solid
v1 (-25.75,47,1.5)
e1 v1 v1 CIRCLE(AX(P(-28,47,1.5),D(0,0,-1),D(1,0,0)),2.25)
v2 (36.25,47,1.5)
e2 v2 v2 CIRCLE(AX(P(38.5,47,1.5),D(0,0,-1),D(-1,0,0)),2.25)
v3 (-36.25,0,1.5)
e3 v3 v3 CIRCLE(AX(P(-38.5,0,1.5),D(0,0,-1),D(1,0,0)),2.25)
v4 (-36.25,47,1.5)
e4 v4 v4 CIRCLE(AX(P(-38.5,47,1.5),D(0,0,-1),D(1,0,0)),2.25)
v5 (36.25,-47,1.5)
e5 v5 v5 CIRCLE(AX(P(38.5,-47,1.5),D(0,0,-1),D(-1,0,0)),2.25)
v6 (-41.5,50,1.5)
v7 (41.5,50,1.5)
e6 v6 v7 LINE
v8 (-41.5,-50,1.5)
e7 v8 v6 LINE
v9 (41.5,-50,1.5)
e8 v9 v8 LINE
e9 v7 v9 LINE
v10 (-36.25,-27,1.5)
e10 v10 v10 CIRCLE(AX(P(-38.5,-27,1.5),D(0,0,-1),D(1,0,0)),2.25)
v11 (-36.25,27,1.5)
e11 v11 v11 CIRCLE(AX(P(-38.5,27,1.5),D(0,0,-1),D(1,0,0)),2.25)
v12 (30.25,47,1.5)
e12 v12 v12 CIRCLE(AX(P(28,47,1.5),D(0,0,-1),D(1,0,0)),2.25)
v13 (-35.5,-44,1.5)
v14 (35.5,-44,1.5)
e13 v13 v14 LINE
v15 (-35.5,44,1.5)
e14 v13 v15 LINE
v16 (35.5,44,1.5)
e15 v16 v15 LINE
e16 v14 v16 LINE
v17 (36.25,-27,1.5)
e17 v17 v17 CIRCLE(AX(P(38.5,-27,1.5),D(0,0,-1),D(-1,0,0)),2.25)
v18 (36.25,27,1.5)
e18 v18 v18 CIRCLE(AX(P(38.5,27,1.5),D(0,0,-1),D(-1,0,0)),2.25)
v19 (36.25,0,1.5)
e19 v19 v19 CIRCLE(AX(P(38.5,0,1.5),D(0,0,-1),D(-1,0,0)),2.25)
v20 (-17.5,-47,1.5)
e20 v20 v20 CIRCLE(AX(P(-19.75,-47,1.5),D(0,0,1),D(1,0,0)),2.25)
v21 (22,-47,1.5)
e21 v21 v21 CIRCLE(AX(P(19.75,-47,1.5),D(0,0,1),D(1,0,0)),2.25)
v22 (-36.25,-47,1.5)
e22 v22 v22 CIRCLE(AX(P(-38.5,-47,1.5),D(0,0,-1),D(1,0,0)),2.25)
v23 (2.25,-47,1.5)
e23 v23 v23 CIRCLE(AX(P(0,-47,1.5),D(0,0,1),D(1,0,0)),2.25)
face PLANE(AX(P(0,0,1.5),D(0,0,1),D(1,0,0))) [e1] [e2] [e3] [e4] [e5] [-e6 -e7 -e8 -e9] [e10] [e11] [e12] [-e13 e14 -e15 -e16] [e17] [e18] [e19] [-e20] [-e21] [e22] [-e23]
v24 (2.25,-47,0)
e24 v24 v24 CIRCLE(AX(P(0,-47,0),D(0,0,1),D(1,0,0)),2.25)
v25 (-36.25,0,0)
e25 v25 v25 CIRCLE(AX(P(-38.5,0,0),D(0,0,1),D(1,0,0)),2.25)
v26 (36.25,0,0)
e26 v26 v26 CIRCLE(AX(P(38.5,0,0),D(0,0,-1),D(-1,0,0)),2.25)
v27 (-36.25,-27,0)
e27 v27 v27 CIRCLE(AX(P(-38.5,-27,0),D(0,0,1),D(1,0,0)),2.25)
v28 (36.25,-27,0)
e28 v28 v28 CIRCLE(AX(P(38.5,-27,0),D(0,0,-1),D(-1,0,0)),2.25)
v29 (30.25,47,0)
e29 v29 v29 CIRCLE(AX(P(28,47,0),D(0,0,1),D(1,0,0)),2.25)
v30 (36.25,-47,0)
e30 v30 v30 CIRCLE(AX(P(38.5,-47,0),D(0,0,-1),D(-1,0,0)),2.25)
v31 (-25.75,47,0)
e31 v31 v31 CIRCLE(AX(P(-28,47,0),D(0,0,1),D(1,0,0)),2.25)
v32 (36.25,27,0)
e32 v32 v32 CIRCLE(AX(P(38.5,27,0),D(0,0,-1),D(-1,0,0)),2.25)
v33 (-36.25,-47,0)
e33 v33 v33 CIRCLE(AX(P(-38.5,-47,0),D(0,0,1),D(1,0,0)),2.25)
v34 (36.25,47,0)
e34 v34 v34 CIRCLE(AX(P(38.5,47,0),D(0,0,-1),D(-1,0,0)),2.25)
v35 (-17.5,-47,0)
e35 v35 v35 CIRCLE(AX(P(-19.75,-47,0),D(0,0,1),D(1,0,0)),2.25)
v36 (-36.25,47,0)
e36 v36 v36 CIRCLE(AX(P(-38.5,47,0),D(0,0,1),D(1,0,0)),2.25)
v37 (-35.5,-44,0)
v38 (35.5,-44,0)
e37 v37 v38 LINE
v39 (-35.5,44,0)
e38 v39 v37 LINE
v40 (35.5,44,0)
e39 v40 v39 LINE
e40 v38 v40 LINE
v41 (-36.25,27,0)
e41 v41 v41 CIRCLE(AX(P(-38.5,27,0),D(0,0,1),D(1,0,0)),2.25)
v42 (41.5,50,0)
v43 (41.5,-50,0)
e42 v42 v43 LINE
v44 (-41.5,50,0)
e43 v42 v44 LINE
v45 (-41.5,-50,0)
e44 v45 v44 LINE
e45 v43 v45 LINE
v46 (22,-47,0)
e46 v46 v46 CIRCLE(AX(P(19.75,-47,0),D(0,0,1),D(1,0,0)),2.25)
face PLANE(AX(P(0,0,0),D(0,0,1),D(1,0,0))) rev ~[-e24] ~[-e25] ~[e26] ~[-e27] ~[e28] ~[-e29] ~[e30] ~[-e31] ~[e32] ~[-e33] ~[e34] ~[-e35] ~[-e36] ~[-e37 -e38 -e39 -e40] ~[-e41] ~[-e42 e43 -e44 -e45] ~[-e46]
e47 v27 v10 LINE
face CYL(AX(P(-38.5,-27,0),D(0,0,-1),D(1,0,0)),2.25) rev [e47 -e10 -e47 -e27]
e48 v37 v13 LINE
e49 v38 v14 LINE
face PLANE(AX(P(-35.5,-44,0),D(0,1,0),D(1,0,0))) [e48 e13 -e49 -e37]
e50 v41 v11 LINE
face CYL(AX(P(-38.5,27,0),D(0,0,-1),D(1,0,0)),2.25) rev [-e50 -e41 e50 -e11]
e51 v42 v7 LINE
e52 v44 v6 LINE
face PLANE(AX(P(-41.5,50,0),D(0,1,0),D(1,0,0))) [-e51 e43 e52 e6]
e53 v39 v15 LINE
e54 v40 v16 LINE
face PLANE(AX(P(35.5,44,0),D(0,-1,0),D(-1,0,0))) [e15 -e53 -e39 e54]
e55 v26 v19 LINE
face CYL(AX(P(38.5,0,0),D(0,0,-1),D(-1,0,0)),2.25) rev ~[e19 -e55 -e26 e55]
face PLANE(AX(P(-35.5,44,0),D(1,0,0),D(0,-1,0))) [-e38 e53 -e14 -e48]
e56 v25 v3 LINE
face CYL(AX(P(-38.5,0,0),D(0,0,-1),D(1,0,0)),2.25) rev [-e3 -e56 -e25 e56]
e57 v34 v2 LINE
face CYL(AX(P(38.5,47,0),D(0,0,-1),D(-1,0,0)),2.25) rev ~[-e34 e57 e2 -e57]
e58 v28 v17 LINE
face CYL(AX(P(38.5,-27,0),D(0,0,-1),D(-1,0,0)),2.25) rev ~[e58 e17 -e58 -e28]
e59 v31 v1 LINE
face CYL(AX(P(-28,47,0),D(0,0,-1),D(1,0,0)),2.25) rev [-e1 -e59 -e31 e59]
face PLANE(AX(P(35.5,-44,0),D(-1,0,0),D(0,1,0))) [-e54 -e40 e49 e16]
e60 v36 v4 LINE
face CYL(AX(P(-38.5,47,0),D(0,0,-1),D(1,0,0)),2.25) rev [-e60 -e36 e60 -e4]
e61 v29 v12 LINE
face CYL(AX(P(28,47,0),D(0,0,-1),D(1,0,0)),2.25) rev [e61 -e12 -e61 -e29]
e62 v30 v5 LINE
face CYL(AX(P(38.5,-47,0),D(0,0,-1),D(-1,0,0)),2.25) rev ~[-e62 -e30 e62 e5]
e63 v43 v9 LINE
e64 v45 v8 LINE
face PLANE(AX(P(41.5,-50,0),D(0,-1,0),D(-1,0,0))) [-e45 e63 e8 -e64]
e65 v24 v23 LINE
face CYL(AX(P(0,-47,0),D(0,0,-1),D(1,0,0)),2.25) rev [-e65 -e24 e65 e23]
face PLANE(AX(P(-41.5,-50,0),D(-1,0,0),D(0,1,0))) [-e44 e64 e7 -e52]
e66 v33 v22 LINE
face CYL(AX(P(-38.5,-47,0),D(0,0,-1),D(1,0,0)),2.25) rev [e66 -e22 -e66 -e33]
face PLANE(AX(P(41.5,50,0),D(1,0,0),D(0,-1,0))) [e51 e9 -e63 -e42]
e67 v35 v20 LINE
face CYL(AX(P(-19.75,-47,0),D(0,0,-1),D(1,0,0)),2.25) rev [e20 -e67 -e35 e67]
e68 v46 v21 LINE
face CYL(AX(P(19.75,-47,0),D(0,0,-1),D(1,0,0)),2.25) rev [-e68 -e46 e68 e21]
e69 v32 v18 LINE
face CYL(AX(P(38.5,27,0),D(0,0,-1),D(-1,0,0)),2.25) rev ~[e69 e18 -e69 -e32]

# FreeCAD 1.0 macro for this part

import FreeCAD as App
import Part
import Sketcher
from FreeCAD import Vector
Q = App.Units.Quantity


def add_polygon(sketch, points):
    """Adds a closed chain of lines whose ends are joined by coincident constraints."""
    first, n = sketch.GeometryCount, len(points)
    for a, b in zip(points, points[1:] + points[:1]):
        sketch.addGeometry(Part.LineSegment(App.Vector(*a, 0), App.Vector(*b, 0)), False)
    for i in range(n):
        sketch.addConstraint(Sketcher.Constraint("Coincident", first + i, 2, first + (i + 1) % n, 1))

doc = App.newDocument("Part")
body = doc.addObject("PartDesign::Body", "Body")

sketch1 = doc.addObject("Sketcher::SketchObject", "Sketch")
body.addObject(sketch1)
sketch1.AttachmentSupport = (doc.XY_Plane, [""])
sketch1.MapMode = "FlatFace"
add_polygon(sketch1, [(-41.5, 50), (-41.5, -50), (41.5, -50), (41.5, 50)])
sketch1.addGeometry(Part.Circle(Vector(-19.8, -47, 0), Vector(0, 0, 1), 2.2), False)
sketch1.addGeometry(Part.Circle(Vector(0, -47, 0), Vector(0, 0, 1), 2.2), False)
sketch1.addGeometry(Part.Circle(Vector(19.8, -47, 0), Vector(0, 0, 1), 2.2), False)
add_polygon(sketch1, [(-35.5, 44), (35.5, 44), (35.5, -44), (-35.5, -44)])
sketch1.addConstraint(Sketcher.Constraint("Vertical", 0))
sketch1.addConstraint(Sketcher.Constraint("Horizontal", 1))
sketch1.addConstraint(Sketcher.Constraint("Vertical", 2))
sketch1.addConstraint(Sketcher.Constraint("Horizontal", 3))
sketch1.addConstraint(Sketcher.Constraint("Horizontal", 7))
sketch1.addConstraint(Sketcher.Constraint("Vertical", 8))
sketch1.addConstraint(Sketcher.Constraint("Horizontal", 9))
sketch1.addConstraint(Sketcher.Constraint("Vertical", 10))
sketch1.addConstraint(Sketcher.Constraint("Equal", 4, 5))
sketch1.addConstraint(Sketcher.Constraint("Equal", 5, 6))
sketch1.addConstraint(Sketcher.Constraint("Symmetric", 0, 2, 2, 2, -1, 1))
sketch1.addConstraint(Sketcher.Constraint("Symmetric", 7, 2, 9, 2, -1, 1))
sketch1.addConstraint(Sketcher.Constraint("Symmetric", 4, 3, 6, 3, -2))
sketch1.addConstraint(Sketcher.Constraint("PointOnObject", 5, 3, -2))
sketch1.addConstraint(Sketcher.Constraint("Horizontal", 4, 3, 5, 3))
sketch1.addConstraint(Sketcher.Constraint("Diameter", 4, Q("4.5 mm")))
sketch1.addConstraint(Sketcher.Constraint("DistanceX", 1, 1, 1, 2, Q("83 mm")))
sketch1.addConstraint(Sketcher.Constraint("DistanceY", 0, 2, 0, 1, Q("100 mm")))
sketch1.addConstraint(Sketcher.Constraint("DistanceY", 0, 2, 4, 3, Q("3 mm")))
sketch1.addConstraint(Sketcher.Constraint("DistanceY", 6, 3, 8, 2, Q("3 mm")))
sketch1.addConstraint(Sketcher.Constraint("DistanceX", 7, 1, 7, 2, Q("71 mm")))
sketch1.addConstraint(Sketcher.Constraint("DistanceX", 4, 3, 6, 3, Q("39.5 mm")))
pad1 = doc.addObject("PartDesign::Pad", "Pad")
body.addObject(pad1)
pad1.Profile = sketch1
pad1.Length = 1.5

sketch2 = doc.addObject("Sketcher::SketchObject", "Sketch001")
body.addObject(sketch2)
sketch2.AttachmentSupport = (doc.XY_Plane, [""])
sketch2.MapMode = "FlatFace"
sketch2.addGeometry(Part.Circle(Vector(-38.5, 0, 0), Vector(0, 0, 1), 2.2), False)
sketch2.addGeometry(Part.Circle(Vector(-38.5, 27, 0), Vector(0, 0, 1), 2.2), False)
sketch2.addGeometry(Part.Circle(Vector(-38.5, -27, 0), Vector(0, 0, 1), 2.2), False)
sketch2.addGeometry(Part.Circle(Vector(-38.5, 47, 0), Vector(0, 0, 1), 2.2), False)
sketch2.addGeometry(Part.Circle(Vector(-38.5, -47, 0), Vector(0, 0, 1), 2.2), False)
sketch2.addConstraint(Sketcher.Constraint("Equal", 0, 1))
sketch2.addConstraint(Sketcher.Constraint("Equal", 1, 2))
sketch2.addConstraint(Sketcher.Constraint("Equal", 2, 3))
sketch2.addConstraint(Sketcher.Constraint("Equal", 3, 4))
sketch2.addConstraint(Sketcher.Constraint("Symmetric", 1, 3, 2, 3, -1))
sketch2.addConstraint(Sketcher.Constraint("Symmetric", 3, 3, 4, 3, -1))
sketch2.addConstraint(Sketcher.Constraint("PointOnObject", 0, 3, -1))
sketch2.addConstraint(Sketcher.Constraint("Vertical", 0, 3, 1, 3))
sketch2.addConstraint(Sketcher.Constraint("Vertical", 2, 3, 3, 3))
sketch2.addConstraint(Sketcher.Constraint("Diameter", 0, Q("4.5 mm")))
sketch2.addConstraint(Sketcher.Constraint("DistanceY", -1, 1, 1, 3, Q("27 mm")))
sketch2.addConstraint(Sketcher.Constraint("DistanceY", -1, 1, 3, 3, Q("47 mm")))
sketch2.addConstraint(Sketcher.Constraint("DistanceX", 0, 3, -1, 1, Q("38.5 mm")))
pocket1 = doc.addObject("PartDesign::Pocket", "Pocket")
body.addObject(pocket1)
pocket1.Profile = sketch2
pocket1.Length = 10
pocket1.Reversed = True
doc.recompute()

mirrored = doc.addObject("PartDesign::Mirrored", "Mirrored")
body.addObject(mirrored)
mirrored.Originals = [pocket1]
mirrored.MirrorPlane = (doc.YZ_Plane, [""])
body.Tip = mirrored

sketch3 = doc.addObject("Sketcher::SketchObject", "Sketch002")
body.addObject(sketch3)
sketch3.AttachmentSupport = (doc.XY_Plane, [""])
sketch3.MapMode = "FlatFace"
sketch3.addGeometry(Part.Circle(Vector(-28, 47, 0), Vector(0, 0, 1), 2.2), False)
sketch3.addGeometry(Part.Circle(Vector(28, 47, 0), Vector(0, 0, 1), 2.2), False)
sketch3.addConstraint(Sketcher.Constraint("Equal", 0, 1))
sketch3.addConstraint(Sketcher.Constraint("Symmetric", 0, 3, 1, 3, -2))
sketch3.addConstraint(Sketcher.Constraint("Diameter", 0, Q("4.5 mm")))
sketch3.addConstraint(Sketcher.Constraint("DistanceX", 0, 3, -1, 1, Q("28 mm")))
sketch3.addConstraint(Sketcher.Constraint("DistanceY", -1, 1, 0, 3, Q("47 mm")))
pocket2 = doc.addObject("PartDesign::Pocket", "Pocket001")
body.addObject(pocket2)
pocket2.Profile = sketch3
pocket2.Length = 10
pocket2.Reversed = True

doc.recompute()
